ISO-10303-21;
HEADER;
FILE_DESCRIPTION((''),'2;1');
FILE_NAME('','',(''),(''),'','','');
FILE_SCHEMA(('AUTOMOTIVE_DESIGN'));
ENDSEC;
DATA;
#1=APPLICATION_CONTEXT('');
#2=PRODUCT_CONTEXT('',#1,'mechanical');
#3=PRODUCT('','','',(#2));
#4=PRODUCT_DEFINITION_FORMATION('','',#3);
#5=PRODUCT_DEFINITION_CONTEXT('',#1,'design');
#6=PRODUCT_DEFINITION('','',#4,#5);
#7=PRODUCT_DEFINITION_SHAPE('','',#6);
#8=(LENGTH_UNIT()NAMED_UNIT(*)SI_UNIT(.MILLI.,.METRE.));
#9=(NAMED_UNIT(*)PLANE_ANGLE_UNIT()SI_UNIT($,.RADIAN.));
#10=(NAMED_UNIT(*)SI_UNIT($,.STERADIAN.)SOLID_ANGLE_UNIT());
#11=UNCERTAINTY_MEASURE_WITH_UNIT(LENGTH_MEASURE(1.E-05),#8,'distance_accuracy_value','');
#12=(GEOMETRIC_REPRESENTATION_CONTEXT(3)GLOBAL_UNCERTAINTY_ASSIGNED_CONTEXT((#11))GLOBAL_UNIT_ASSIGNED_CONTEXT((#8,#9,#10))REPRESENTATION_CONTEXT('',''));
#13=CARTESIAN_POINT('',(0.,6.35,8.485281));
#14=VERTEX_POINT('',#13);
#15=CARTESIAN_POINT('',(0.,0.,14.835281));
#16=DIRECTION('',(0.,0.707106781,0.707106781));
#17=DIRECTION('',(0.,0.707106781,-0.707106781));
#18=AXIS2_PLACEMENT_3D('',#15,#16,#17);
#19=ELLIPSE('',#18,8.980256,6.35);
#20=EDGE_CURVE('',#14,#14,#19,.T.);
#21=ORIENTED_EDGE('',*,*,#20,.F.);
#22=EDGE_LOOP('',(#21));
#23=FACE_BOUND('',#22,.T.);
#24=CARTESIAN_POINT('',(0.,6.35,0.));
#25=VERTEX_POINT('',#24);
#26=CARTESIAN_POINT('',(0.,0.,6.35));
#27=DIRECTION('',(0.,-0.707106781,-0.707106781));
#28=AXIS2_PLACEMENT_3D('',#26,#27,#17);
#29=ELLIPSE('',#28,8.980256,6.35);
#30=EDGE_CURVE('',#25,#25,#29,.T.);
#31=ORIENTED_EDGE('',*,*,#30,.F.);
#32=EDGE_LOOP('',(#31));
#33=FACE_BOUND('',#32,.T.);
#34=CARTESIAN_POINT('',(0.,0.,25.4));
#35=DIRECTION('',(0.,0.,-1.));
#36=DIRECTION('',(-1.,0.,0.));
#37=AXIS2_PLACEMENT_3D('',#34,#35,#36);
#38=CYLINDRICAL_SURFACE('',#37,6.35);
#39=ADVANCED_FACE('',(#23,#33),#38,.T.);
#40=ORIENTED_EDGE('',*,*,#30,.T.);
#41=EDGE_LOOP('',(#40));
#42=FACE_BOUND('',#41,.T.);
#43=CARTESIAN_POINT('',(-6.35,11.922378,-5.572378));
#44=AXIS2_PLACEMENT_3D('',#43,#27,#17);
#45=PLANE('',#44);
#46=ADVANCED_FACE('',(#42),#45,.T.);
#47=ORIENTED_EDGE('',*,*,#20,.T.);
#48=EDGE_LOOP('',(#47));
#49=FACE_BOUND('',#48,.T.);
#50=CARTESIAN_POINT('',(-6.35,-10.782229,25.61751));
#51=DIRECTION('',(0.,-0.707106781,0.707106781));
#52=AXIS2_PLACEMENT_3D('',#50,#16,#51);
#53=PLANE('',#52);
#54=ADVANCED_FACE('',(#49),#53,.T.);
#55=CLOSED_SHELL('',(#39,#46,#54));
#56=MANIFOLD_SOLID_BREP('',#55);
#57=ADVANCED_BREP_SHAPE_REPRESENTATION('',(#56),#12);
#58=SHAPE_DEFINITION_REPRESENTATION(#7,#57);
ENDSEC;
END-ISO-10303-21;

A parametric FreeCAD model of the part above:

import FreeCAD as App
import Part
import Sketcher

V = App.Vector
Q = App.Units.Quantity


def add_polygon(sketch, points):
    """Adds a closed chain of lines whose ends are joined by coincident constraints."""
    first, n = sketch.GeometryCount, len(points)
    for a, b in zip(points, points[1:] + points[:1]):
        sketch.addGeometry(Part.LineSegment(App.Vector(*a, 0), App.Vector(*b, 0)), False)
    for i in range(n):
        sketch.addConstraint(Sketcher.Constraint("Coincident", first + i, 2, first + (i + 1) % n, 1))

doc = App.newDocument("Part")
body = doc.addObject("PartDesign::Body", "Body")

# Sketch on XY plane
sketch1 = doc.addObject("Sketcher::SketchObject", "Sketch")
body.addObject(sketch1)
sketch1.AttachmentSupport = (doc.XY_Plane, [""])
sketch1.MapMode = "FlatFace"
sketch1.addGeometry(Part.Circle(V(0, 0, 0), V(0, 0, 1), 6), False)
sketch1.addConstraint([
    Sketcher.Constraint("Coincident", 0, 3, -1, 1),
    Sketcher.Constraint("Diameter", 0, Q("0.5 in")),
])
pad1 = doc.addObject("PartDesign::Pad", "Pad")
body.addObject(pad1)
pad1.Profile = sketch1
pad1.Length = Q("1 in")

# Sketch on YZ plane
sketch2 = doc.addObject("Sketcher::SketchObject", "Sketch001")
body.addObject(sketch2)
sketch2.AttachmentSupport = (doc.YZ_Plane, [""])
sketch2.MapMode = "FlatFace"
add_polygon(sketch2, [(10.5, 29.5), (-10.5, 29.5), (-10.5, 25.3), (10.5, 4.4)])  # lines 0-3
add_polygon(sketch2, [(10.5, -4.1), (-10.5, 16.8), (-10.5, -4.1)])  # lines 4-6
sketch2.addConstraint([
    Sketcher.Constraint("Horizontal", 0),
    Sketcher.Constraint("Vertical", 1),
    Sketcher.Constraint("Vertical", 3),
    Sketcher.Constraint("Vertical", 5),
    Sketcher.Constraint("Horizontal", 6),
    Sketcher.Constraint("Parallel", 2, 4),
    Sketcher.Constraint("Vertical", 1, 2, 4, 2),
    Sketcher.Constraint("Vertical", 3, 2, 6, 2),
    Sketcher.Constraint("Equal", 6, 5),
    Sketcher.Constraint("DistanceY", 4, 2, 0, 2, Q("0.5 in")),
    Sketcher.Constraint("DistanceX", 0, 2, 0, 1, 20.922),
    Sketcher.Constraint("DistanceY", 1, 2, 1, 1, 4.214719),
    Sketcher.Constraint("DistanceX", 0, 2, -1, 1, 10.461),
    Sketcher.Constraint("DistanceY", -1, 1, 0, 2, 29.511),
])
pocket1 = doc.addObject("PartDesign::Pocket", "Pocket")
body.addObject(pocket1)
pocket1.Profile = sketch2
pocket1.Type = "ThroughAll"
pocket1.Midplane = True

doc.recompute()
